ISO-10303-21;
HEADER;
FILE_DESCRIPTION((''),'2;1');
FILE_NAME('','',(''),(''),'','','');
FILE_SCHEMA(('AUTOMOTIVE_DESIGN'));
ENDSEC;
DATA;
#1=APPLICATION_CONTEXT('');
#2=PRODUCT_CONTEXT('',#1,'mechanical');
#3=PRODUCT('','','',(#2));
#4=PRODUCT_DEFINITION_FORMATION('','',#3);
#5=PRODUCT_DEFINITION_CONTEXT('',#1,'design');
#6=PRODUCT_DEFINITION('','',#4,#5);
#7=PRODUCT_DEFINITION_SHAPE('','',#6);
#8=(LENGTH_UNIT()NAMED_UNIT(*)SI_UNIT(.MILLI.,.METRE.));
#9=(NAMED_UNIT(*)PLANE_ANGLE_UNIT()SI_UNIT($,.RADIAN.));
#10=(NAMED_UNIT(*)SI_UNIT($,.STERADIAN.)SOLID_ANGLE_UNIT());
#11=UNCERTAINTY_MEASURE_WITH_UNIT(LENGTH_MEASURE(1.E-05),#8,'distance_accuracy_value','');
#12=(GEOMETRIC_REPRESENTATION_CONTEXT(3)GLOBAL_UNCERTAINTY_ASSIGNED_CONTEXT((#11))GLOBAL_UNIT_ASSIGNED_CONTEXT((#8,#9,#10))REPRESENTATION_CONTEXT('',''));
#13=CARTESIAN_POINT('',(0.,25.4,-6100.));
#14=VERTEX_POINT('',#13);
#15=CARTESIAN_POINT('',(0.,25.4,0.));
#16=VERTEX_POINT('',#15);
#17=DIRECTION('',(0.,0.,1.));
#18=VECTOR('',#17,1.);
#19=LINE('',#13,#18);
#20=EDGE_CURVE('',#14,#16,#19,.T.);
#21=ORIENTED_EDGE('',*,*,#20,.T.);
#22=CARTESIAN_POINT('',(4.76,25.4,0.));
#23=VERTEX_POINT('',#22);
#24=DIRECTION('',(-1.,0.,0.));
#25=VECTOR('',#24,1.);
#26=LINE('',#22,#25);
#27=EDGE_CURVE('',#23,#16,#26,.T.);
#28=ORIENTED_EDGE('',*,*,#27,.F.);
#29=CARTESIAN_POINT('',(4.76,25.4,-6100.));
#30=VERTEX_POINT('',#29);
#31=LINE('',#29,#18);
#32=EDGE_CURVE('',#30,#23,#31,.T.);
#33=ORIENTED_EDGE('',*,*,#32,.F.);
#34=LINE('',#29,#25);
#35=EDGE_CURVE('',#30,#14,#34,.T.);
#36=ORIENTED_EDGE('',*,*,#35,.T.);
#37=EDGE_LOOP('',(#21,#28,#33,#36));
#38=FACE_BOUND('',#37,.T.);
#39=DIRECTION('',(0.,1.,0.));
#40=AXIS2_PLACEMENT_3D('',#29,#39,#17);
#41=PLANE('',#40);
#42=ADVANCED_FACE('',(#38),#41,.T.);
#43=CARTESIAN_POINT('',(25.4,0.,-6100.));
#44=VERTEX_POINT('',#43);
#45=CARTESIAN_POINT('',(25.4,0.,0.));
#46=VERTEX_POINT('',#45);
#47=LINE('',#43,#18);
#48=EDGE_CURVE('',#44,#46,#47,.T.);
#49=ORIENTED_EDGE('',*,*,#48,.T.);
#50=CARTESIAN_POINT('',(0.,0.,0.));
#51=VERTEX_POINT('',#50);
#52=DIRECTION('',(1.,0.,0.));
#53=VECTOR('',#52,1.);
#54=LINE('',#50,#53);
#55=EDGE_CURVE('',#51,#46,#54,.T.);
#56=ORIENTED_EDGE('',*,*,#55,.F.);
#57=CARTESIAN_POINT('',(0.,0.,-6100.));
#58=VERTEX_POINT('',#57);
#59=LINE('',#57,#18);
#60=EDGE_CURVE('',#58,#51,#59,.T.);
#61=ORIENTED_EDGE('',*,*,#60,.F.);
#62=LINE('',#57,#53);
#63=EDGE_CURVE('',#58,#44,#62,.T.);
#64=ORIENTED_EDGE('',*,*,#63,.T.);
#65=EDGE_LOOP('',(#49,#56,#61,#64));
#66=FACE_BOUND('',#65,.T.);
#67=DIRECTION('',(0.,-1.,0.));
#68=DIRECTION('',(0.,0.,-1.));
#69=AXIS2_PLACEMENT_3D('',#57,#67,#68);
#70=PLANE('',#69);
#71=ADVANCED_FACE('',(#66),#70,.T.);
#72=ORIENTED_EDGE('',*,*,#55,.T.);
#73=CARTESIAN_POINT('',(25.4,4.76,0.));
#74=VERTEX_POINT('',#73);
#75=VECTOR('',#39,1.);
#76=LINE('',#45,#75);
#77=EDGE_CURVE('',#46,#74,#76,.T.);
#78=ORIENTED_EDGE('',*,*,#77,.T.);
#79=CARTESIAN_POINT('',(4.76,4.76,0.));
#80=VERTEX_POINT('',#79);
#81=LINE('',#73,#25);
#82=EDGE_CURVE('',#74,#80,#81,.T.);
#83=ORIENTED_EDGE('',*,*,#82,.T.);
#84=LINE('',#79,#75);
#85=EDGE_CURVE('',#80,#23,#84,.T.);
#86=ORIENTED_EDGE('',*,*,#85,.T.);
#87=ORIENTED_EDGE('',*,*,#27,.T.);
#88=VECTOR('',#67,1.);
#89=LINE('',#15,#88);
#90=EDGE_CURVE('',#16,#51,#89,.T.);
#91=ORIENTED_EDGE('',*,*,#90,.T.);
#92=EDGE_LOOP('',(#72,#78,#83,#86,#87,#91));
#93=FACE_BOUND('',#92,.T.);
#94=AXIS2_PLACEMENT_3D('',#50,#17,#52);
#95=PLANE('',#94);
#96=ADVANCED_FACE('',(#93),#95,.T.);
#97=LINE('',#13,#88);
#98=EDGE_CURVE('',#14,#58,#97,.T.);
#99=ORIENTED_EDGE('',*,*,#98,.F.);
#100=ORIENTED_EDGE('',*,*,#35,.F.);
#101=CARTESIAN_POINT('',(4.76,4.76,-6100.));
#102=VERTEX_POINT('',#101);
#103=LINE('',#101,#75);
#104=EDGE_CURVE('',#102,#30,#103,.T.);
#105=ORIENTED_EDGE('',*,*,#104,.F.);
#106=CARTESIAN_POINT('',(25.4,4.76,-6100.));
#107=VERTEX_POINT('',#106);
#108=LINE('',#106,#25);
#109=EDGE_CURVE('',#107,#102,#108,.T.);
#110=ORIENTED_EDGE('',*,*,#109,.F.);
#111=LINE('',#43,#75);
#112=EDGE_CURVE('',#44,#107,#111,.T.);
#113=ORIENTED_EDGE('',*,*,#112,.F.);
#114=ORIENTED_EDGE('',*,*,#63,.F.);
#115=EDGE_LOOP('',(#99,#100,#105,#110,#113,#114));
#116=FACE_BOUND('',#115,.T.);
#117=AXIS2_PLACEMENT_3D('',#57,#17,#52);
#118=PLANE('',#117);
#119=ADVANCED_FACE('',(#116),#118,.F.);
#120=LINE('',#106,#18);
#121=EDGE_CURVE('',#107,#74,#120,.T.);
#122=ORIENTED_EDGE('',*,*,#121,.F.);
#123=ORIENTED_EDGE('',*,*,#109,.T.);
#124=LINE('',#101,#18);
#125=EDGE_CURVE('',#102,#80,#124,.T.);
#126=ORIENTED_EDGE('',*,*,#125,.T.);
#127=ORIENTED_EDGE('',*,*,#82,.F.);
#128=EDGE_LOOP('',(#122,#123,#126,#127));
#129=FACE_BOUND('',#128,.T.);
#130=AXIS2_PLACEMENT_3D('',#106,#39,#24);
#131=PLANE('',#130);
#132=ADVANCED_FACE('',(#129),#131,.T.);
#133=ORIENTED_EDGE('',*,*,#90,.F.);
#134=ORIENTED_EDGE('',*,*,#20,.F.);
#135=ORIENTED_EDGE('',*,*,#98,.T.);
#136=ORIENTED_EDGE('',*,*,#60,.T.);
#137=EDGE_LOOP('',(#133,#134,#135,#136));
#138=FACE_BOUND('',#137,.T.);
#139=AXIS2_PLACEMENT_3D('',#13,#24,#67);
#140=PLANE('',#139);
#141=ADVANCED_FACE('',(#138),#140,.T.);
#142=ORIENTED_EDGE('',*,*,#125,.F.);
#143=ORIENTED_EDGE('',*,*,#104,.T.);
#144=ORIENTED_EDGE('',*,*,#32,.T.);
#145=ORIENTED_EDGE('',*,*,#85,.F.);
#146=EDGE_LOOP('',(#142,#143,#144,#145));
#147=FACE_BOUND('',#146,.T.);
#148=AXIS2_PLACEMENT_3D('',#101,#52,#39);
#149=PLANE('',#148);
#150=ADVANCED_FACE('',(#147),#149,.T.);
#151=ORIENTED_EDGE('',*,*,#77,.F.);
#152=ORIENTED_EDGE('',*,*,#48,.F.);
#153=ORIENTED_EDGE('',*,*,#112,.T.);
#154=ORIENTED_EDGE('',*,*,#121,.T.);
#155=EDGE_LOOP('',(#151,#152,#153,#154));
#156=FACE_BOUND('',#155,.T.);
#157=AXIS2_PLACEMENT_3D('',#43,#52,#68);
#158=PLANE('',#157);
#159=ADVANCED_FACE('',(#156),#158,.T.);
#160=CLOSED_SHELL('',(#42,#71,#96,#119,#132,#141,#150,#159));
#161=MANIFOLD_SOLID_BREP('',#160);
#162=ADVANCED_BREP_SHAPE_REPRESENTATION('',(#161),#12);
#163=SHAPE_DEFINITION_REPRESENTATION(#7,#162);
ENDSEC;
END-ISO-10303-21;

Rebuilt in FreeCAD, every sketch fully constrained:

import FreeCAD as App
import Part
import Sketcher

V = App.Vector
Q = App.Units.Quantity


def add_polygon(sketch, points):
    """Adds a closed chain of lines whose ends are joined by coincident constraints."""
    first, n = sketch.GeometryCount, len(points)
    for a, b in zip(points, points[1:] + points[:1]):
        sketch.addGeometry(Part.LineSegment(App.Vector(*a, 0), App.Vector(*b, 0)), False)
    for i in range(n):
        sketch.addConstraint(Sketcher.Constraint("Coincident", first + i, 2, first + (i + 1) % n, 1))

doc = App.newDocument("Part")
body = doc.addObject("PartDesign::Body", "Body")

sketch1 = doc.addObject("Sketcher::SketchObject", "Sketch")
body.addObject(sketch1)
sketch1.AttachmentSupport = (doc.XY_Plane, [""])
sketch1.MapMode = "FlatFace"
add_polygon(sketch1, [(0, 25.4), (0, 0), (25.4, 0), (25.4, 4.8), (4.8, 4.8), (4.8, 25.4)])
sketch1.addConstraint([
    Sketcher.Constraint("Vertical", 0),
    Sketcher.Constraint("Horizontal", 1),
    Sketcher.Constraint("Vertical", 2),
    Sketcher.Constraint("Horizontal", 3),
    Sketcher.Constraint("Vertical", 4),
    Sketcher.Constraint("Horizontal", 5),
    Sketcher.Constraint("Coincident", 0, 2, -1, 1),
    Sketcher.Constraint("Equal", 1, 0),
    Sketcher.Constraint("Equal", 5, 2),
    Sketcher.Constraint("DistanceX", 1, 1, 1, 2, Q("25.4 mm")),
    Sketcher.Constraint("DistanceX", 3, 2, 3, 1, Q("20.64 mm")),
])
pad1 = doc.addObject("PartDesign::Pad", "Pad")
body.addObject(pad1)
pad1.Profile = sketch1
pad1.Length = 6100
pad1.Reversed = True

doc.recompute()
